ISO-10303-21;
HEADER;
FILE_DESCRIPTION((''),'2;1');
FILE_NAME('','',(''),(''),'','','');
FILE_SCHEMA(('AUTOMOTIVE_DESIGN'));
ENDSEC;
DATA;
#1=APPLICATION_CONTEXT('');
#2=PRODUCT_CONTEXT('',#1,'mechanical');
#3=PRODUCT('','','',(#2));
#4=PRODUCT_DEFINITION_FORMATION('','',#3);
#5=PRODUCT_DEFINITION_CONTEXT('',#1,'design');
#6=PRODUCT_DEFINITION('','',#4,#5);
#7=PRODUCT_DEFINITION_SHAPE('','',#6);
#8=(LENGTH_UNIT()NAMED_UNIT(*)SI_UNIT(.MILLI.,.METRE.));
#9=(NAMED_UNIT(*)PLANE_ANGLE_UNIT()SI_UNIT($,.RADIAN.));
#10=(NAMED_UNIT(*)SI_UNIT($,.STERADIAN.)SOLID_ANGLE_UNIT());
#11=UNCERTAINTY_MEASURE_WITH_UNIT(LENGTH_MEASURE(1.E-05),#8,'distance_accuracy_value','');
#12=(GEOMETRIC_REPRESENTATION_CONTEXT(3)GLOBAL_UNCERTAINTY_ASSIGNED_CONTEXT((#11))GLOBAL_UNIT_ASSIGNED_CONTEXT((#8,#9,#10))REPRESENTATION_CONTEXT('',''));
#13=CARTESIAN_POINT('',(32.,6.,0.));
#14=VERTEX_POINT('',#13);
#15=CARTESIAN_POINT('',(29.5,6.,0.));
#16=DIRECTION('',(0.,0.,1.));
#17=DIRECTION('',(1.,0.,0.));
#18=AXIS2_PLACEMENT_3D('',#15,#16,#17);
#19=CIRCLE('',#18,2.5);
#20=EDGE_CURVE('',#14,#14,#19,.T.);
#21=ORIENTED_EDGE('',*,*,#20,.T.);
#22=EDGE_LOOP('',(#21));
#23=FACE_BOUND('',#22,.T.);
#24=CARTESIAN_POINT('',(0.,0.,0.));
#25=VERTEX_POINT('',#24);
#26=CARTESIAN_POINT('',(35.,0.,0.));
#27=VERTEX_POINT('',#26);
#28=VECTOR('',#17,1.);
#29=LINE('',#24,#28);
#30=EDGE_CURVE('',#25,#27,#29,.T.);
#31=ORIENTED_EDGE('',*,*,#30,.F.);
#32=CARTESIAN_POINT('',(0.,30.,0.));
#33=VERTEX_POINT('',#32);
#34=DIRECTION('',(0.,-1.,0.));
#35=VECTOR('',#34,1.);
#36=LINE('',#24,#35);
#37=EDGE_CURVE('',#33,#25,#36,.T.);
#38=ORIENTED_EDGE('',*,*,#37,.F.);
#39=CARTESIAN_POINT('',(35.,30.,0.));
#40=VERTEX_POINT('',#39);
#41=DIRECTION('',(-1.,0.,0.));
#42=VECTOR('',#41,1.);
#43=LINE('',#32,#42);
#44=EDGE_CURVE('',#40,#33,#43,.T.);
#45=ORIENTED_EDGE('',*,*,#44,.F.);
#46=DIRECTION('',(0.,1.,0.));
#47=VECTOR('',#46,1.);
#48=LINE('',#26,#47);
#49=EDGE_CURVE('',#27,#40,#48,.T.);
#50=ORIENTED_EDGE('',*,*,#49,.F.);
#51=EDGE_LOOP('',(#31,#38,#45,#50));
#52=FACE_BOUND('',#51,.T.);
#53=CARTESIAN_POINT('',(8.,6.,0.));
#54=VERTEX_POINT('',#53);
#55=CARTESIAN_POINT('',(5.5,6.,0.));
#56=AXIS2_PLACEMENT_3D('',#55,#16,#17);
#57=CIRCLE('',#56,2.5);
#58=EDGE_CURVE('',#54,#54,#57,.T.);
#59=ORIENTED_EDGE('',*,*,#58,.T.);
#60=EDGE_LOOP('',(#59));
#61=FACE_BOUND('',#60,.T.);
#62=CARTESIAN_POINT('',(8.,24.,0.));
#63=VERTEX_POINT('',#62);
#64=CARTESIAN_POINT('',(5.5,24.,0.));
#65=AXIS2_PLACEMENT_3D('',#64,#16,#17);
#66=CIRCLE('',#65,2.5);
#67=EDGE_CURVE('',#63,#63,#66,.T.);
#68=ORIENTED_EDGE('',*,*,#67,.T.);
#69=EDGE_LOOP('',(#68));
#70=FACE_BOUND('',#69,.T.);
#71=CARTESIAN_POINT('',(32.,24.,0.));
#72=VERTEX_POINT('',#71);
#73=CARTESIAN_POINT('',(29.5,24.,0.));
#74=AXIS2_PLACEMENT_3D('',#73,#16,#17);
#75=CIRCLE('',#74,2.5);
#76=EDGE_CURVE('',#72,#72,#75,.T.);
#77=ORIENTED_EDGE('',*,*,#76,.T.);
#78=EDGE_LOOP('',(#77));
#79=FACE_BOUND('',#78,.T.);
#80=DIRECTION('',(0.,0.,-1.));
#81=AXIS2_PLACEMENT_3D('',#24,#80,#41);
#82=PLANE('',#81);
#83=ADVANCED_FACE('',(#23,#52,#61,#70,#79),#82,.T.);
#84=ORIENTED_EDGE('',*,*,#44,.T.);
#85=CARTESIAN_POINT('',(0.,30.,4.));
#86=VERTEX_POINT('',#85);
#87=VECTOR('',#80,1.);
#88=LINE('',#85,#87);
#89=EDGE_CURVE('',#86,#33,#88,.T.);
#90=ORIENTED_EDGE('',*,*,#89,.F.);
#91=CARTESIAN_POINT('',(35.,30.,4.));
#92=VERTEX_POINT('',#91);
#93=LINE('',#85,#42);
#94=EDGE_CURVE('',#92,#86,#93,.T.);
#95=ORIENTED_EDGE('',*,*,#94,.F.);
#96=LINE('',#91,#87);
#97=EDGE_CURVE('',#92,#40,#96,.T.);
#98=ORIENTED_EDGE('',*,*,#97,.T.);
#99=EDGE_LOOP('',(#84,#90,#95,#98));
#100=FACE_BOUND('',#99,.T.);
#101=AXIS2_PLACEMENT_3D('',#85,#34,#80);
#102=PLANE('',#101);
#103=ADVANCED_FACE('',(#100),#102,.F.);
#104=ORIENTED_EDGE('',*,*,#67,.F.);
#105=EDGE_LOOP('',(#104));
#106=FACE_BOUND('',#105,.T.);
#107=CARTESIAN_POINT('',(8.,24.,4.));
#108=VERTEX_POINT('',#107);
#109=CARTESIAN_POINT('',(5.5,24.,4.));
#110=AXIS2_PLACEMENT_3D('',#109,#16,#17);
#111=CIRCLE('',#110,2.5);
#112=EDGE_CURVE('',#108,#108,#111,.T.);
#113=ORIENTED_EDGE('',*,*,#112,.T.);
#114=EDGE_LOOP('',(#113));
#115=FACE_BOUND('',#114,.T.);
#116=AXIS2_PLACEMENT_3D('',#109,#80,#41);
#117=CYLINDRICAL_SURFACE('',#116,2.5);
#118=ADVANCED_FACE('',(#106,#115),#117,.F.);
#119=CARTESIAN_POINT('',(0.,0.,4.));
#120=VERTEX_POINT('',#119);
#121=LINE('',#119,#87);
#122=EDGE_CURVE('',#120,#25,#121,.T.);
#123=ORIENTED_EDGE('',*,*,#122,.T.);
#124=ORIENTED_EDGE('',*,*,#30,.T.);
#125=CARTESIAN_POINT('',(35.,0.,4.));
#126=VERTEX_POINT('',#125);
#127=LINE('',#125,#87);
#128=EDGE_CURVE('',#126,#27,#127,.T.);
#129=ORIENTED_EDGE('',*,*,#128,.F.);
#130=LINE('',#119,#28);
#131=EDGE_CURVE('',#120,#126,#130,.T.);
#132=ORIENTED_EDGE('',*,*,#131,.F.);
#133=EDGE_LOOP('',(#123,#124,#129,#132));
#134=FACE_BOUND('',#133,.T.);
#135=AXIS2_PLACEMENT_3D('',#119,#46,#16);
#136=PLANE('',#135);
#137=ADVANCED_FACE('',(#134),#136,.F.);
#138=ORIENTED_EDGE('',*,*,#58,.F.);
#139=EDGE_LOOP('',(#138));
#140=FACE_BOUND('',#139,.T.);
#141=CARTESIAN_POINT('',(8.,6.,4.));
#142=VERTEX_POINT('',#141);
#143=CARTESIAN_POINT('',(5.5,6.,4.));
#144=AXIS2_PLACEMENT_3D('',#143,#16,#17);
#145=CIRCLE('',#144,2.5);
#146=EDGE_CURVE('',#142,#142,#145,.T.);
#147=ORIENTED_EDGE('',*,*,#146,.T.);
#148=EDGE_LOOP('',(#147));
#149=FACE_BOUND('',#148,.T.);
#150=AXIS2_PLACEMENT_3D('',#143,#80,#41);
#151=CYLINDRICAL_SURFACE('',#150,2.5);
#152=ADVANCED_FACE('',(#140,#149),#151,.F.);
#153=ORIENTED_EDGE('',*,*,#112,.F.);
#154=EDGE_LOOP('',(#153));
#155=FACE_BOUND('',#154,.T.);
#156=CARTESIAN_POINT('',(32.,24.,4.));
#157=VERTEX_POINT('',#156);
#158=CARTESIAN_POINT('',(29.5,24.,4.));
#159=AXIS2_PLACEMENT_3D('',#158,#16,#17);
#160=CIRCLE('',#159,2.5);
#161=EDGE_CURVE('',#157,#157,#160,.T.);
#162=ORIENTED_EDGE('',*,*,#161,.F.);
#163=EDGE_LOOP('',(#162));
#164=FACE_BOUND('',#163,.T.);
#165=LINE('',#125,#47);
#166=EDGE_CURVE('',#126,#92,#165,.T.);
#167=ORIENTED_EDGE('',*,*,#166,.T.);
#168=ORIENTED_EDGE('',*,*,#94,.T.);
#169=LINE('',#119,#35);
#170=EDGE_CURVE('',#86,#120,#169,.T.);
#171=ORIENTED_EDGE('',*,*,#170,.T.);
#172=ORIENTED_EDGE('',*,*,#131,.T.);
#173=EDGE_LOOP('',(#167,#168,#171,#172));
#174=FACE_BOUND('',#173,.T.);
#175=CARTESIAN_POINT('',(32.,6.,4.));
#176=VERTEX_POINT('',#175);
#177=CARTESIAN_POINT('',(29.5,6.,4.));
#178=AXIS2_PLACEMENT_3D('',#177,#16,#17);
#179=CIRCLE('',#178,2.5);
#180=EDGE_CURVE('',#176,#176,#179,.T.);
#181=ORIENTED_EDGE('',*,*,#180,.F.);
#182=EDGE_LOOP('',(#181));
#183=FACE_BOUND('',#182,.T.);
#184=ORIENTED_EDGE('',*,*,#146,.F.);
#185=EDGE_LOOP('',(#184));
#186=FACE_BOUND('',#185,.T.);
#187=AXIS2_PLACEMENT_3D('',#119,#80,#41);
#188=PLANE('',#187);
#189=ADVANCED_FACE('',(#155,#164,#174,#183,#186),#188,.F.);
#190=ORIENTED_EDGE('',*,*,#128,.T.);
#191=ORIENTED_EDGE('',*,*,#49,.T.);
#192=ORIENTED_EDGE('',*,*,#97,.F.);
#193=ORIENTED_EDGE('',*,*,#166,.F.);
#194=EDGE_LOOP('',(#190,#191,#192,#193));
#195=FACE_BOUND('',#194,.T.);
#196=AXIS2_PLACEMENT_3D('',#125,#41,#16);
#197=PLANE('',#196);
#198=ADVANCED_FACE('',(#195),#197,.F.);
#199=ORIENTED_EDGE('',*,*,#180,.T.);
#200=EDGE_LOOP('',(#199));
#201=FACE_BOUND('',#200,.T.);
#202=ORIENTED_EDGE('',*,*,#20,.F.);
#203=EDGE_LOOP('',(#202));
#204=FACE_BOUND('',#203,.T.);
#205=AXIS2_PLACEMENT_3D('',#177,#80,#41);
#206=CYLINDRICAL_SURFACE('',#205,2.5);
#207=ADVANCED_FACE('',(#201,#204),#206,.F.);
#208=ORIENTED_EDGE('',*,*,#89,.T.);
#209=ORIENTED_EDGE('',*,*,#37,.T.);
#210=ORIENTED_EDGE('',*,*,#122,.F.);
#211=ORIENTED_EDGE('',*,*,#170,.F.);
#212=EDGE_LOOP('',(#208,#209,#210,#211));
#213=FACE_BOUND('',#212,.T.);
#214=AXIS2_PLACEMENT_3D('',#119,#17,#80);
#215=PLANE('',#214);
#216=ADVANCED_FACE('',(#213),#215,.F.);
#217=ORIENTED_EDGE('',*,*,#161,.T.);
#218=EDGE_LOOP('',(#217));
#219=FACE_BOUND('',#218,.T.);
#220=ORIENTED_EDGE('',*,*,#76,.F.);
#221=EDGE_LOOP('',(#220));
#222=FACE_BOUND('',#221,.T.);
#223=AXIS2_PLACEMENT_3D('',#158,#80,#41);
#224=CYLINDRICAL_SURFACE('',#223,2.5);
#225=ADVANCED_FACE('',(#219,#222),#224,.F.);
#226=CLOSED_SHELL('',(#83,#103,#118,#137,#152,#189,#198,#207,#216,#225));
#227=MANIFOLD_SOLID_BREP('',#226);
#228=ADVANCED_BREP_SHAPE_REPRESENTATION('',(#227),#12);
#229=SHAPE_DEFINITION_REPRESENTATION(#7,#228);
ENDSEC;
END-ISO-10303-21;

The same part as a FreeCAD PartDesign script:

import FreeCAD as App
import Part
import Sketcher
from FreeCAD import Vector


def add_polygon(sketch, points):
    """Adds a closed chain of lines whose ends are joined by coincident constraints."""
    first, n = sketch.GeometryCount, len(points)
    for a, b in zip(points, points[1:] + points[:1]):
        sketch.addGeometry(Part.LineSegment(App.Vector(*a, 0), App.Vector(*b, 0)), False)
    for i in range(n):
        sketch.addConstraint(Sketcher.Constraint("Coincident", first + i, 2, first + (i + 1) % n, 1))

doc = App.newDocument("Part")
body = doc.addObject("PartDesign::Body", "Body")

# Sketch on XY plane
sketch1 = doc.addObject("Sketcher::SketchObject", "Sketch")
body.addObject(sketch1)
sketch1.AttachmentSupport = (doc.XY_Plane, [""])
sketch1.MapMode = "FlatFace"
add_polygon(sketch1, [(0, 30), (0, 0), (35, 0), (35, 30)])  # lines 0-3
sketch1.addGeometry(Part.Circle(Vector(5.5, 6, 0), Vector(0, 0, 1), 2.5), False)  # 4
sketch1.addGeometry(Part.Circle(Vector(29.5, 6, 0), Vector(0, 0, 1), 2.5), False)  # 5
sketch1.addGeometry(Part.Circle(Vector(5.5, 24, 0), Vector(0, 0, 1), 2.5), False)  # 6
sketch1.addGeometry(Part.Circle(Vector(29.5, 24, 0), Vector(0, 0, 1), 2.5), False)  # 7
sketch1.addConstraint([
    Sketcher.Constraint("Vertical", 0),
    Sketcher.Constraint("Horizontal", 1),
    Sketcher.Constraint("Vertical", 2),
    Sketcher.Constraint("Horizontal", 3),
    Sketcher.Constraint("Coincident", 0, 2, -1, 1),
    Sketcher.Constraint("Equal", 4, 5),
    Sketcher.Constraint("Equal", 5, 6),
    Sketcher.Constraint("Equal", 6, 7),
    Sketcher.Constraint("Horizontal", 4, 3, 5, 3),
    Sketcher.Constraint("Horizontal", 6, 3, 7, 3),
    Sketcher.Constraint("Vertical", 4, 3, 6, 3),
    Sketcher.Constraint("Vertical", 5, 3, 7, 3),
    Sketcher.Constraint("Diameter", 4, 5.0),
    Sketcher.Constraint("DistanceX", 1, 1, 1, 2, 35.0),
    Sketcher.Constraint("DistanceY", 0, 2, 0, 1, 30.0),
    Sketcher.Constraint("DistanceY", -1, 1, 4, 3, 6.0),
    Sketcher.Constraint("DistanceY", -1, 1, 6, 3, 24.0),
    Sketcher.Constraint("DistanceX", 4, 3, 5, 3, 24.0),
    Sketcher.Constraint("DistanceX", -1, 1, 4, 3, 5.5),
])
pad1 = doc.addObject("PartDesign::Pad", "Pad")
body.addObject(pad1)
pad1.Profile = sketch1
pad1.Length = 4

doc.recompute()
